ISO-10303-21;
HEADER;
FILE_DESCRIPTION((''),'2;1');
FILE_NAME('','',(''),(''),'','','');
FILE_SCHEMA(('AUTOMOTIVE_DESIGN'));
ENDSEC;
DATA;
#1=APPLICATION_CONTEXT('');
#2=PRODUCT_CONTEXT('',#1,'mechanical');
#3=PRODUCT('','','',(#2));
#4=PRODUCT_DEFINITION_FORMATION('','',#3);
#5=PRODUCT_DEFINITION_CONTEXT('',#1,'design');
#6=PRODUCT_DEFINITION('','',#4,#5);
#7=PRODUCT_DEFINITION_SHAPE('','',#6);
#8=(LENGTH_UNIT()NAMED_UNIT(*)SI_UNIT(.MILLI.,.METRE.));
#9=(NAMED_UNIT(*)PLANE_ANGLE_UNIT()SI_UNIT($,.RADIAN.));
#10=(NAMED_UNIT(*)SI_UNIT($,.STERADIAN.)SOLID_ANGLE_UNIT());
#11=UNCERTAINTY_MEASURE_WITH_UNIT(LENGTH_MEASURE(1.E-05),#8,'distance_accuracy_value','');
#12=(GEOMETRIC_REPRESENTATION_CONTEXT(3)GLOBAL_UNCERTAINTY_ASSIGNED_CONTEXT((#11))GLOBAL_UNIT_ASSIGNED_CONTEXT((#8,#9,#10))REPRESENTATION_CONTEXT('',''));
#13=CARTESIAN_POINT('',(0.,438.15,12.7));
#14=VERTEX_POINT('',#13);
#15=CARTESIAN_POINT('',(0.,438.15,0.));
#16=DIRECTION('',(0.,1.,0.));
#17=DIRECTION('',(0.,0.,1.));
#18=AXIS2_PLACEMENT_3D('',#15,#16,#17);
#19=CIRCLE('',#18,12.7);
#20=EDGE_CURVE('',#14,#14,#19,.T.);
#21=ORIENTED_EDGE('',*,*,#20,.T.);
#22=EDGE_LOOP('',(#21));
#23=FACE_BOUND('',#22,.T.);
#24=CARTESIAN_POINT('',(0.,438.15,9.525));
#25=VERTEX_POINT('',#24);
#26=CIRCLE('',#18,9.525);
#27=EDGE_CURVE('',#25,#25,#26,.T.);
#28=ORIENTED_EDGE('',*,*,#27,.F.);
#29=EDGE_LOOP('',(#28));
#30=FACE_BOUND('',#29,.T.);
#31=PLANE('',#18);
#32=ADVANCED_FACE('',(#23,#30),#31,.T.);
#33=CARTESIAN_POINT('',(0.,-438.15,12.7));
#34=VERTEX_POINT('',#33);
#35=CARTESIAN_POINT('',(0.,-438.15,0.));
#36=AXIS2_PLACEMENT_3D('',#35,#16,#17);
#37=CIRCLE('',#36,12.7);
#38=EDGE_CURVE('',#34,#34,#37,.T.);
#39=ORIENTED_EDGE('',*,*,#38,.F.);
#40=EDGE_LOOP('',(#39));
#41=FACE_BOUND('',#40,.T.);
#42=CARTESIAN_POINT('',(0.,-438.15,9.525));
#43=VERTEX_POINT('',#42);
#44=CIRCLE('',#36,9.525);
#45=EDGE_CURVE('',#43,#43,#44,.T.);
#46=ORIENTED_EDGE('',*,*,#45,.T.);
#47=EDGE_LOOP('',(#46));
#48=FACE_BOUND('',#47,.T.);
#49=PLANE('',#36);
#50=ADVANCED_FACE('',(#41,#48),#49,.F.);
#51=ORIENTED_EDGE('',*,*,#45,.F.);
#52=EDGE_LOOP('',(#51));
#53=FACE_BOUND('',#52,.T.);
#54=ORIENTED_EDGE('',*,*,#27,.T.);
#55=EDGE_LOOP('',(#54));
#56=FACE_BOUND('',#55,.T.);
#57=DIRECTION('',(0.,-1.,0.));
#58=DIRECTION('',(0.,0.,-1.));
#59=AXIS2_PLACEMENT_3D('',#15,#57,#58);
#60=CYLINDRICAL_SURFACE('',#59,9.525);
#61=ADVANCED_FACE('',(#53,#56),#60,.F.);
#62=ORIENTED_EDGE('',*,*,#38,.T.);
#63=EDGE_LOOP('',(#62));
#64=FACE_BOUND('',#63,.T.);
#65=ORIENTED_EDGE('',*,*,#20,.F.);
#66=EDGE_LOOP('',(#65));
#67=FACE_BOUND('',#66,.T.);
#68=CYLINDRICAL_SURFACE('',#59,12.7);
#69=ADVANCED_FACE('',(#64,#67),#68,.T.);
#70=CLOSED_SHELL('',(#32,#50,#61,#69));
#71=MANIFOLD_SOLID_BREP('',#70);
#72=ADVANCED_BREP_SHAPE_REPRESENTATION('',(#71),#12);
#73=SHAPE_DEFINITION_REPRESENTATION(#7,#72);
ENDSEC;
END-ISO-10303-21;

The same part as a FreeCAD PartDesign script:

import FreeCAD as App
import Part
import Sketcher
Q = App.Units.Quantity

doc = App.newDocument("Part")
body = doc.addObject("PartDesign::Body", "Body")

# Sketch on XZ plane
sketch1 = body.newObject("Sketcher::SketchObject", "Sketch")
sketch1.AttachmentSupport = (doc.getObject("XZ_Plane"), [""])
sketch1.MapMode = "FlatFace"
sketch1.addGeometry(Part.Circle(App.Vector(0, 0, 0), App.Vector(0, 0, 1), 13), False)
sketch1.addGeometry(Part.Circle(App.Vector(0, 0, 0), App.Vector(0, 0, 1), 10), False)
sketch1.addConstraint(Sketcher.Constraint("Coincident", 0, 3, -1, 1))
sketch1.addConstraint(Sketcher.Constraint("Coincident", 1, 3, -1, 1))
sketch1.addConstraint(Sketcher.Constraint("Diameter", 0, Q("1 in")))
sketch1.addConstraint(Sketcher.Constraint("Diameter", 1, Q("0.75 in")))
pad1 = body.newObject("PartDesign::Pad", "Pad")
pad1.Profile = sketch1
pad1.Length = Q("34.5 in")
pad1.Midplane = True

doc.recompute()
